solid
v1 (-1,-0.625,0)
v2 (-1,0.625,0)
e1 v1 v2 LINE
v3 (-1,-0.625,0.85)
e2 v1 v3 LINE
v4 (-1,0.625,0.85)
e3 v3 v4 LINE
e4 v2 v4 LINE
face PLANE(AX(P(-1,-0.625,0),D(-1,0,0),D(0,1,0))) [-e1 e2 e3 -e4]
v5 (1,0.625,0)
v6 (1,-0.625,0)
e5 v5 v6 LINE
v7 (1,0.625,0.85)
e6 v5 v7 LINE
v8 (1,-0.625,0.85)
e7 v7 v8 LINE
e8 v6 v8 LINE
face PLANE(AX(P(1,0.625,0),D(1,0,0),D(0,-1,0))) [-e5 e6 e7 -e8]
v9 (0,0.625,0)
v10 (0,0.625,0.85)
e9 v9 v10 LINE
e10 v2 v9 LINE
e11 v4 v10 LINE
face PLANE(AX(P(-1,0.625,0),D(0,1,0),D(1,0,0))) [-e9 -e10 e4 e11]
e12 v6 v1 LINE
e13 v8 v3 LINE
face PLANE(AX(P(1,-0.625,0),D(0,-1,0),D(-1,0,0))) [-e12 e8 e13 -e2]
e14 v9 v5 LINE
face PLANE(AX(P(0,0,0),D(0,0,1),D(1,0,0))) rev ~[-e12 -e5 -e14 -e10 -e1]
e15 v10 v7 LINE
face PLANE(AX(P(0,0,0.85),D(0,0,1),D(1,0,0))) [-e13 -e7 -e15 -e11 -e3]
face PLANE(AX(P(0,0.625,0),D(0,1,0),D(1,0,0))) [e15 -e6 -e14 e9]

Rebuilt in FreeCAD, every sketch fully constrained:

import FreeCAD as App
import Part
import Sketcher
Q = App.Units.Quantity


def add_polygon(sketch, points):
    """Adds a closed chain of lines whose ends are joined by coincident constraints."""
    first, n = sketch.GeometryCount, len(points)
    for a, b in zip(points, points[1:] + points[:1]):
        sketch.addGeometry(Part.LineSegment(App.Vector(*a, 0), App.Vector(*b, 0)), False)
    for i in range(n):
        sketch.addConstraint(Sketcher.Constraint("Coincident", first + i, 2, first + (i + 1) % n, 1))

doc = App.newDocument("Part")
body = doc.addObject("PartDesign::Body", "Body")

sketch1 = body.newObject("Sketcher::SketchObject", "Sketch")
sketch1.AttachmentSupport = (doc.getObject("XY_Plane"), [""])
sketch1.MapMode = "FlatFace"
add_polygon(sketch1, [(1, 0.625), (-1, 0.625), (-1, -0.625), (1, -0.625)])
sketch1.addConstraint([
    Sketcher.Constraint("Horizontal", 0),
    Sketcher.Constraint("Vertical", 1),
    Sketcher.Constraint("Horizontal", 2),
    Sketcher.Constraint("Vertical", 3),
    Sketcher.Constraint("Symmetric", 0, 2, 2, 2, -1, 1),
    Sketcher.Constraint("DistanceX", 0, 2, 0, 1, Q("2 mm")),
    Sketcher.Constraint("DistanceY", 1, 2, 1, 1, Q("1.25 mm")),
])
pad1 = body.newObject("PartDesign::Pad", "Pad")
pad1.Profile = sketch1
pad1.Length = 0.85

doc.recompute()
